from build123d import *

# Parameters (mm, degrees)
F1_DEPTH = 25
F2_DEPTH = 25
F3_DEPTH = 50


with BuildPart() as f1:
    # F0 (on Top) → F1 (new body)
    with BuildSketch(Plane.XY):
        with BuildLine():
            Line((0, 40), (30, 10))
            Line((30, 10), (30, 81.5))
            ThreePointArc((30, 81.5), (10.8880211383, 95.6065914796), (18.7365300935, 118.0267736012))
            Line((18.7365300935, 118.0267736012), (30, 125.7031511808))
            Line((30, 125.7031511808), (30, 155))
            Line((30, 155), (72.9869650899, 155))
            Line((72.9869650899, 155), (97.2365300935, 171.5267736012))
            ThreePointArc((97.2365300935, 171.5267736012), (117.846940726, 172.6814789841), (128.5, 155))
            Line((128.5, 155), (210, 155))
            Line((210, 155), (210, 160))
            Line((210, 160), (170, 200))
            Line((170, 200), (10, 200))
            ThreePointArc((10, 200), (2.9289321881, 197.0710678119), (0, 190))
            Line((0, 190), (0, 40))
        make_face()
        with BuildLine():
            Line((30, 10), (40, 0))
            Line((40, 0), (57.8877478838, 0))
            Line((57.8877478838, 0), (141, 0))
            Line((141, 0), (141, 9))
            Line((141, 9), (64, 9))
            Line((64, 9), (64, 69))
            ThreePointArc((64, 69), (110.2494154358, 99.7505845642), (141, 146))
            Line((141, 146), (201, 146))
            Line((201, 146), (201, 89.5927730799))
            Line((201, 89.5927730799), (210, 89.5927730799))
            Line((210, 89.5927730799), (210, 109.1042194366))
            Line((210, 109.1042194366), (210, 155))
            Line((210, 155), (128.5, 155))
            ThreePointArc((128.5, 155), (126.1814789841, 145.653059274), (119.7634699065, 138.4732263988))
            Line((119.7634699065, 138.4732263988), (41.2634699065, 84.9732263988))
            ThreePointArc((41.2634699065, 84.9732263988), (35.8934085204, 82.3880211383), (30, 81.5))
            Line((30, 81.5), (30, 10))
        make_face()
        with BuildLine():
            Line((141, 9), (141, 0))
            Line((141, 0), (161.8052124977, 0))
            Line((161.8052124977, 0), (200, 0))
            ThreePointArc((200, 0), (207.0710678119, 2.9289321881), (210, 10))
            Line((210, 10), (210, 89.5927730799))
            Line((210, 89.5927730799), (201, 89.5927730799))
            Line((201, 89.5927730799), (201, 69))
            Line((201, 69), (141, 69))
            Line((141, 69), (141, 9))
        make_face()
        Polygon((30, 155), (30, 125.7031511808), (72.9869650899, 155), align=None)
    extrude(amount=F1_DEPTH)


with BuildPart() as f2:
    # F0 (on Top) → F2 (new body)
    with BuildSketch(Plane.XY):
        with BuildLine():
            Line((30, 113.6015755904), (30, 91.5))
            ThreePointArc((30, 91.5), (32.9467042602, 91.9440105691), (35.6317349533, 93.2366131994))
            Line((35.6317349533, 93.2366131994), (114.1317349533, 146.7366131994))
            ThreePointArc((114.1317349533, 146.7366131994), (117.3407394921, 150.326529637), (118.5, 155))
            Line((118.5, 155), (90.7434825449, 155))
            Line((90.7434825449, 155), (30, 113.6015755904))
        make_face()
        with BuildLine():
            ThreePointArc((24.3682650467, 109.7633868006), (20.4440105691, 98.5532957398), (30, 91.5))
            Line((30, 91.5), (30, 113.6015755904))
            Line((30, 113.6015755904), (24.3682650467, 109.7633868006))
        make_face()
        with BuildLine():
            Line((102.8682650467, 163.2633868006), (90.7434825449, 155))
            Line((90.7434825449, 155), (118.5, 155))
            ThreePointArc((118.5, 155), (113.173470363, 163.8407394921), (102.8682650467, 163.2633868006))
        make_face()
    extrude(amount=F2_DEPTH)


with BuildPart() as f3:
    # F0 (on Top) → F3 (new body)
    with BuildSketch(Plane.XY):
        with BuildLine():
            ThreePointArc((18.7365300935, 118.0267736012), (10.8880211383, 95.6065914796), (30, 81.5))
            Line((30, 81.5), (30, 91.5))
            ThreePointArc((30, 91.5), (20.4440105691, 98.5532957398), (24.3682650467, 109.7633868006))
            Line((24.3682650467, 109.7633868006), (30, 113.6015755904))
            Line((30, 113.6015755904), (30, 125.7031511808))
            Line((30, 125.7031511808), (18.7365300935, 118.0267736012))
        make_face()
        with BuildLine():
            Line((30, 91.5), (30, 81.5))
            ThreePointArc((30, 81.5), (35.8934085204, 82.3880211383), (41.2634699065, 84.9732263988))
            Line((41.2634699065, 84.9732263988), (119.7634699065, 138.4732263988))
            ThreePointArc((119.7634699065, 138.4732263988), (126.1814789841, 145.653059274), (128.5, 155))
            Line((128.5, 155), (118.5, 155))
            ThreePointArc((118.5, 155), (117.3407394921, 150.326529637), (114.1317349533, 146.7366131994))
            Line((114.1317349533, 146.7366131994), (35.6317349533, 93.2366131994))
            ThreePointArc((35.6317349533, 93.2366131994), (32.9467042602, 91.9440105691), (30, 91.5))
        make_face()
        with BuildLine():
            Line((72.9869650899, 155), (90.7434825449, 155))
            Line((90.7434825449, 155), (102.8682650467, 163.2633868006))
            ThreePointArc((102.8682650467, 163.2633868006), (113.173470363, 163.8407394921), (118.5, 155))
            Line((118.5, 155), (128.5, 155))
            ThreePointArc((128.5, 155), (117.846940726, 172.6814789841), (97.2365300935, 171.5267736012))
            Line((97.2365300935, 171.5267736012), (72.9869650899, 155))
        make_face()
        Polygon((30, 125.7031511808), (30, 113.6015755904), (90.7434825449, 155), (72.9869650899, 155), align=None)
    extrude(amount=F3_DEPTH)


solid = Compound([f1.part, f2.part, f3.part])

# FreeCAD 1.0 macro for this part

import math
import FreeCAD as App
import Part
import Sketcher
Q = App.Units.Quantity

doc = App.newDocument("Part")
body = doc.addObject("PartDesign::Body", "Body")

# Sketch on XY plane
sketch1 = doc.addObject("Sketcher::SketchObject", "Sketch")
body.addObject(sketch1)
sketch1.AttachmentSupport = (doc.XY_Plane, [""])
sketch1.MapMode = "FlatFace"
sketch1.addGeometry(Part.LineSegment(App.Vector(0, 40, 0), App.Vector(40, 0, 0)), False)
sketch1.addGeometry(Part.LineSegment(App.Vector(40, 0, 0), App.Vector(200, 0, 0)), False)
sketch1.addGeometry(Part.ArcOfCircle(Part.Circle(App.Vector(200, 10, 0), App.Vector(0, 0, 1), 10), math.radians(-90), math.radians(0)), False)
sketch1.addGeometry(Part.LineSegment(App.Vector(210, 10, 0), App.Vector(210, 160, 0)), False)
sketch1.addGeometry(Part.LineSegment(App.Vector(210, 160, 0), App.Vector(170, 200, 0)), False)
sketch1.addGeometry(Part.LineSegment(App.Vector(170, 200, 0), App.Vector(10, 200, 0)), False)
sketch1.addGeometry(Part.ArcOfCircle(Part.Circle(App.Vector(10, 190, 0), App.Vector(0, 0, 1), 10), math.radians(90), math.radians(180)), False)
sketch1.addGeometry(Part.LineSegment(App.Vector(0, 190, 0), App.Vector(0, 40, 0)), False)
sketch1.addGeometry(Part.LineSegment(App.Vector(141, 9, 0), App.Vector(64, 9, 0)), False)
sketch1.addGeometry(Part.LineSegment(App.Vector(64, 9, 0), App.Vector(64, 69, 0)), False)
sketch1.addGeometry(Part.ArcOfCircle(Part.Circle(App.Vector(11, 199, 0), App.Vector(0, 0, 1), 141), math.radians(-68), math.radians(-22)), False)
sketch1.addGeometry(Part.LineSegment(App.Vector(141, 146, 0), App.Vector(201, 146, 0)), False)
sketch1.addGeometry(Part.LineSegment(App.Vector(201, 146, 0), App.Vector(201, 69, 0)), False)
sketch1.addGeometry(Part.LineSegment(App.Vector(201, 69, 0), App.Vector(141, 69, 0)), False)
sketch1.addGeometry(Part.LineSegment(App.Vector(141, 69, 0), App.Vector(141, 9, 0)), False)
sketch1.addGeometry(Part.ArcOfCircle(Part.Circle(App.Vector(30, 102, 0), App.Vector(0, 0, 1), 20), math.radians(124), math.radians(270)), False)
sketch1.addGeometry(Part.LineSegment(App.Vector(19, 118, 0), App.Vector(30, 126, 0)), False)
sketch1.addGeometry(Part.LineSegment(App.Vector(30, 126, 0), App.Vector(73, 155, 0)), False)
sketch1.addGeometry(Part.LineSegment(App.Vector(73, 155, 0), App.Vector(97, 172, 0)), False)
sketch1.addGeometry(Part.ArcOfCircle(Part.Circle(App.Vector(108, 155, 0), App.Vector(0, 0, 1), 20), math.radians(0), math.radians(124)), False)
sketch1.addGeometry(Part.ArcOfCircle(Part.Circle(App.Vector(108, 155, 0), App.Vector(0, 0, 1), 20), math.radians(-56), math.radians(0)), False)
sketch1.addGeometry(Part.LineSegment(App.Vector(120, 138, 0), App.Vector(41, 85, 0)), False)
sketch1.addGeometry(Part.ArcOfCircle(Part.Circle(App.Vector(30, 102, 0), App.Vector(0, 0, 1), 20), math.radians(-90), math.radians(-56)), False)
sketch1.addConstraint(Sketcher.Constraint("Coincident", 0, 2, 1, 1))
sketch1.addConstraint(Sketcher.Constraint("Tangent", 1, 2, 2, 1))
sketch1.addConstraint(Sketcher.Constraint("Tangent", 2, 2, 3, 1))
sketch1.addConstraint(Sketcher.Constraint("Coincident", 3, 2, 4, 1))
sketch1.addConstraint(Sketcher.Constraint("Coincident", 4, 2, 5, 1))
sketch1.addConstraint(Sketcher.Constraint("Tangent", 5, 2, 6, 1))
sketch1.addConstraint(Sketcher.Constraint("Tangent", 6, 2, 7, 1))
sketch1.addConstraint(Sketcher.Constraint("Coincident", 7, 2, 0, 1))
sketch1.addConstraint(Sketcher.Constraint("Coincident", 8, 2, 9, 1))
sketch1.addConstraint(Sketcher.Constraint("Coincident", 9, 2, 10, 1))
sketch1.addConstraint(Sketcher.Constraint("Coincident", 10, 2, 11, 1))
sketch1.addConstraint(Sketcher.Constraint("Coincident", 11, 2, 12, 1))
sketch1.addConstraint(Sketcher.Constraint("Coincident", 12, 2, 13, 1))
sketch1.addConstraint(Sketcher.Constraint("Coincident", 13, 2, 14, 1))
sketch1.addConstraint(Sketcher.Constraint("Coincident", 14, 2, 8, 1))
sketch1.addConstraint(Sketcher.Constraint("Tangent", 15, 1, 16, 1))
sketch1.addConstraint(Sketcher.Constraint("Coincident", 16, 2, 17, 1))
sketch1.addConstraint(Sketcher.Constraint("Coincident", 17, 2, 18, 1))
sketch1.addConstraint(Sketcher.Constraint("Tangent", 18, 2, 19, 2))
sketch1.addConstraint(Sketcher.Constraint("Tangent", 19, 1, 20, 2))
sketch1.addConstraint(Sketcher.Constraint("Tangent", 20, 1, 21, 1))
sketch1.addConstraint(Sketcher.Constraint("Tangent", 21, 2, 22, 2))
sketch1.addConstraint(Sketcher.Constraint("Tangent", 22, 1, 15, 2))
sketch1.addConstraint(Sketcher.Constraint("Horizontal", 1))
sketch1.addConstraint(Sketcher.Constraint("Vertical", 3))
sketch1.addConstraint(Sketcher.Constraint("Horizontal", 5))
sketch1.addConstraint(Sketcher.Constraint("Vertical", 7))
sketch1.addConstraint(Sketcher.Constraint("Horizontal", 8))
sketch1.addConstraint(Sketcher.Constraint("Vertical", 9))
sketch1.addConstraint(Sketcher.Constraint("Horizontal", 11))
sketch1.addConstraint(Sketcher.Constraint("Vertical", 12))
sketch1.addConstraint(Sketcher.Constraint("Horizontal", 13))
sketch1.addConstraint(Sketcher.Constraint("Vertical", 14))
sketch1.addConstraint(Sketcher.Constraint("Equal", 2, 6))
sketch1.addConstraint(Sketcher.Constraint("Equal", 15, 19))
sketch1.addConstraint(Sketcher.Constraint("Equal", 19, 20))
sketch1.addConstraint(Sketcher.Constraint("Equal", 20, 22))
sketch1.addConstraint(Sketcher.Constraint("PointOnObject", 0, 2, -1))
sketch1.addConstraint(Sketcher.Constraint("PointOnObject", 6, 2, -2))
sketch1.addConstraint(Sketcher.Constraint("Parallel", 0, 4))
sketch1.addConstraint(Sketcher.Constraint("Parallel", 16, 17))
sketch1.addConstraint(Sketcher.Constraint("Parallel", 17, 18))
sketch1.addConstraint(Sketcher.Constraint("Horizontal", 9, 2, 12, 2))
sketch1.addConstraint(Sketcher.Constraint("Horizontal", 20, 3, 17, 2))
sketch1.addConstraint(Sketcher.Constraint("Horizontal", 17, 2, 19, 1))
sketch1.addConstraint(Sketcher.Constraint("Vertical", 10, 2, 13, 2))
sketch1.addConstraint(Sketcher.Constraint("Vertical", 22, 3, 16, 2))
sketch1.addConstraint(Sketcher.Constraint("Vertical", 16, 2, 22, 1))
sketch1.addConstraint(Sketcher.Constraint("Equal", 1, 5))
sketch1.addConstraint(Sketcher.Constraint("Equal", 13, 9))
sketch1.addConstraint(Sketcher.Constraint("Equal", 8, 12))
sketch1.addConstraint(Sketcher.Constraint("Radius", 2, 10.0))
sketch1.addConstraint(Sketcher.Constraint("Radius", 15, 20.0))
sketch1.addConstraint(Sketcher.Constraint("DistanceX", 1, 1, 1, 2, 160.0))
sketch1.addConstraint(Sketcher.Constraint("DistanceX", 8, 2, 8, 1, 77.0))
sketch1.addConstraint(Sketcher.Constraint("DistanceX", 11, 1, 11, 2, 60.0))
sketch1.addConstraint(Sketcher.Constraint("DistanceY", 3, 1, 3, 2, 150.0))
sketch1.addConstraint(Sketcher.Constraint("Angle", 0, Q("-45 deg")))
sketch1.addConstraint(Sketcher.Constraint("DistanceX", -1, 1, 2, 3, 200.0))
sketch1.addConstraint(Sketcher.Constraint("DistanceX", -1, 1, 15, 3, 30.0))
sketch1.addConstraint(Sketcher.Constraint("DistanceY", -1, 1, 19, 3, 155.0))
sketch1.addConstraint(Sketcher.Constraint("DistanceX", -1, 1, 8, 2, 64.0))
sketch1.addConstraint(Sketcher.Constraint("DistanceY", -1, 1, 8, 2, 9.0))
sketch1.addConstraint(Sketcher.Constraint("DistanceY", -1, 1, 15, 3, 101.5))
sketch1.addConstraint(Sketcher.Constraint("DistanceX", -1, 1, 19, 3, 108.5))
sketch1.addConstraint(Sketcher.Constraint("Radius", 10, 140.72974))
pad1 = doc.addObject("PartDesign::Pad", "Pad")
body.addObject(pad1)
pad1.Profile = sketch1
pad1.Length = 25
body2 = doc.addObject("PartDesign::Body", "Body001")

# Sketch on XY plane
sketch2 = doc.addObject("Sketcher::SketchObject", "Sketch001")
body2.addObject(sketch2)
sketch2.AttachmentSupport = (doc.getObject("XY_Plane001"), [""])
sketch2.MapMode = "FlatFace"
sketch2.addGeometry(Part.ArcOfCircle(Part.Circle(App.Vector(30, 102, 0), App.Vector(0, 0, 1), 10), math.radians(-90), math.radians(-56)), False)
sketch2.addGeometry(Part.LineSegment(App.Vector(36, 93, 0), App.Vector(114, 147, 0)), False)
sketch2.addGeometry(Part.ArcOfCircle(Part.Circle(App.Vector(108, 155, 0), App.Vector(0, 0, 1), 10), math.radians(-56), math.radians(0)), False)
sketch2.addGeometry(Part.ArcOfCircle(Part.Circle(App.Vector(108, 155, 0), App.Vector(0, 0, 1), 10), math.radians(0), math.radians(124)), False)
sketch2.addGeometry(Part.LineSegment(App.Vector(103, 163, 0), App.Vector(30, 114, 0)), False)
sketch2.addGeometry(Part.LineSegment(App.Vector(30, 114, 0), App.Vector(24, 110, 0)), False)
sketch2.addGeometry(Part.ArcOfCircle(Part.Circle(App.Vector(30, 102, 0), App.Vector(0, 0, 1), 10), math.radians(124), math.radians(270)), False)
sketch2.addConstraint(Sketcher.Constraint("Tangent", 0, 2, 1, 1))
sketch2.addConstraint(Sketcher.Constraint("Tangent", 1, 2, 2, 1))
sketch2.addConstraint(Sketcher.Constraint("Tangent", 2, 2, 3, 1))
sketch2.addConstraint(Sketcher.Constraint("Tangent", 3, 2, 4, 1))
sketch2.addConstraint(Sketcher.Constraint("Coincident", 4, 2, 5, 1))
sketch2.addConstraint(Sketcher.Constraint("Tangent", 5, 2, 6, 1))
sketch2.addConstraint(Sketcher.Constraint("Tangent", 6, 2, 0, 1))
sketch2.addConstraint(Sketcher.Constraint("Equal", 0, 2))
sketch2.addConstraint(Sketcher.Constraint("Equal", 2, 3))
sketch2.addConstraint(Sketcher.Constraint("Equal", 3, 6))
sketch2.addConstraint(Sketcher.Constraint("Parallel", 1, 4))
sketch2.addConstraint(Sketcher.Constraint("Horizontal", 3, 3, 2, 2))
sketch2.addConstraint(Sketcher.Constraint("Vertical", 6, 3, 4, 2))
sketch2.addConstraint(Sketcher.Constraint("Vertical", 4, 2, 6, 2))
sketch2.addConstraint(Sketcher.Constraint("Radius", 0, 10.0))
sketch2.addConstraint(Sketcher.Constraint("DistanceX", -1, 1, 0, 3, 30.0))
sketch2.addConstraint(Sketcher.Constraint("DistanceY", -1, 1, 2, 3, 155.0))
sketch2.addConstraint(Sketcher.Constraint("DistanceY", -1, 1, 0, 3, 101.5))
sketch2.addConstraint(Sketcher.Constraint("DistanceX", -1, 1, 2, 3, 108.5))
pad2 = doc.addObject("PartDesign::Pad", "Pad001")
body2.addObject(pad2)
pad2.Profile = sketch2
pad2.Length = 25
body3 = doc.addObject("PartDesign::Body", "Body002")

# Sketch on XY plane
sketch3 = doc.addObject("Sketcher::SketchObject", "Sketch002")
body3.addObject(sketch3)
sketch3.AttachmentSupport = (doc.getObject("XY_Plane002"), [""])
sketch3.MapMode = "FlatFace"
sketch3.addGeometry(Part.ArcOfCircle(Part.Circle(App.Vector(30, 102, 0), App.Vector(0, 0, 1), 20), math.radians(124), math.radians(270)), False)
sketch3.addGeometry(Part.ArcOfCircle(Part.Circle(App.Vector(30, 102, 0), App.Vector(0, 0, 1), 20), math.radians(-90), math.radians(-56)), False)
sketch3.addGeometry(Part.LineSegment(App.Vector(41, 85, 0), App.Vector(120, 138, 0)), False)
sketch3.addGeometry(Part.ArcOfCircle(Part.Circle(App.Vector(108, 155, 0), App.Vector(0, 0, 1), 20), math.radians(-56), math.radians(0)), False)
sketch3.addGeometry(Part.ArcOfCircle(Part.Circle(App.Vector(108, 155, 0), App.Vector(0, 0, 1), 20), math.radians(0), math.radians(124)), False)
sketch3.addGeometry(Part.LineSegment(App.Vector(97, 172, 0), App.Vector(73, 155, 0)), False)
sketch3.addGeometry(Part.LineSegment(App.Vector(73, 155, 0), App.Vector(30, 126, 0)), False)
sketch3.addGeometry(Part.LineSegment(App.Vector(30, 126, 0), App.Vector(19, 118, 0)), False)
sketch3.addGeometry(Part.ArcOfCircle(Part.Circle(App.Vector(108, 155, 0), App.Vector(0, 0, 1), 10), math.radians(0), math.radians(124)), False)
sketch3.addGeometry(Part.ArcOfCircle(Part.Circle(App.Vector(108, 155, 0), App.Vector(0, 0, 1), 10), math.radians(-56), math.radians(0)), False)
sketch3.addGeometry(Part.LineSegment(App.Vector(114, 147, 0), App.Vector(36, 93, 0)), False)
sketch3.addGeometry(Part.ArcOfCircle(Part.Circle(App.Vector(30, 102, 0), App.Vector(0, 0, 1), 10), math.radians(-90), math.radians(-56)), False)
sketch3.addGeometry(Part.ArcOfCircle(Part.Circle(App.Vector(30, 102, 0), App.Vector(0, 0, 1), 10), math.radians(124), math.radians(270)), False)
sketch3.addGeometry(Part.LineSegment(App.Vector(24, 110, 0), App.Vector(30, 114, 0)), False)
sketch3.addGeometry(Part.LineSegment(App.Vector(30, 114, 0), App.Vector(103, 163, 0)), False)
sketch3.addConstraint(Sketcher.Constraint("Tangent", 0, 2, 1, 1))
sketch3.addConstraint(Sketcher.Constraint("Tangent", 1, 2, 2, 1))
sketch3.addConstraint(Sketcher.Constraint("Tangent", 2, 2, 3, 1))
sketch3.addConstraint(Sketcher.Constraint("Tangent", 3, 2, 4, 1))
sketch3.addConstraint(Sketcher.Constraint("Tangent", 4, 2, 5, 1))
sketch3.addConstraint(Sketcher.Constraint("Coincident", 5, 2, 6, 1))
sketch3.addConstraint(Sketcher.Constraint("Coincident", 6, 2, 7, 1))
sketch3.addConstraint(Sketcher.Constraint("Tangent", 7, 2, 0, 1))
sketch3.addConstraint(Sketcher.Constraint("Tangent", 8, 1, 9, 2))
sketch3.addConstraint(Sketcher.Constraint("Tangent", 9, 1, 10, 1))
sketch3.addConstraint(Sketcher.Constraint("Tangent", 10, 2, 11, 2))
sketch3.addConstraint(Sketcher.Constraint("Tangent", 11, 1, 12, 2))
sketch3.addConstraint(Sketcher.Constraint("Tangent", 12, 1, 13, 1))
sketch3.addConstraint(Sketcher.Constraint("Coincident", 13, 2, 14, 1))
sketch3.addConstraint(Sketcher.Constraint("Tangent", 14, 2, 8, 2))
sketch3.addConstraint(Sketcher.Constraint("Coincident", 8, 3, 3, 3))
sketch3.addConstraint(Sketcher.Constraint("Coincident", 11, 3, 0, 3))
sketch3.addConstraint(Sketcher.Constraint("Equal", 0, 1))
sketch3.addConstraint(Sketcher.Constraint("Equal", 1, 3))
sketch3.addConstraint(Sketcher.Constraint("Equal", 3, 4))
sketch3.addConstraint(Sketcher.Constraint("Equal", 8, 9))
sketch3.addConstraint(Sketcher.Constraint("Equal", 9, 11))
sketch3.addConstraint(Sketcher.Constraint("Equal", 11, 12))
sketch3.addConstraint(Sketcher.Constraint("Parallel", 2, 5))
sketch3.addConstraint(Sketcher.Constraint("Parallel", 5, 6))
sketch3.addConstraint(Sketcher.Constraint("Parallel", 10, 13))
sketch3.addConstraint(Sketcher.Constraint("Horizontal", 9, 3, 3, 2))
sketch3.addConstraint(Sketcher.Constraint("Horizontal", 3, 2, 5, 2))
sketch3.addConstraint(Sketcher.Constraint("Horizontal", 5, 2, 8, 1))
sketch3.addConstraint(Sketcher.Constraint("Vertical", 12, 3, 0, 2))
sketch3.addConstraint(Sketcher.Constraint("Vertical", 0, 2, 6, 2))
sketch3.addConstraint(Sketcher.Constraint("Vertical", 6, 2, 11, 1))
sketch3.addConstraint(Sketcher.Constraint("Vertical", 11, 1, 13, 2))
sketch3.addConstraint(Sketcher.Constraint("Radius", 0, 20.0))
sketch3.addConstraint(Sketcher.Constraint("Radius", 8, 10.0))
sketch3.addConstraint(Sketcher.Constraint("DistanceX", -1, 1, 0, 3, 30.0))
sketch3.addConstraint(Sketcher.Constraint("DistanceY", -1, 1, 3, 3, 155.0))
sketch3.addConstraint(Sketcher.Constraint("DistanceY", -1, 1, 0, 3, 101.5))
sketch3.addConstraint(Sketcher.Constraint("DistanceX", -1, 1, 3, 3, 108.5))
pad3 = doc.addObject("PartDesign::Pad", "Pad002")
body3.addObject(pad3)
pad3.Profile = sketch3
pad3.Length = 50

doc.recompute()
